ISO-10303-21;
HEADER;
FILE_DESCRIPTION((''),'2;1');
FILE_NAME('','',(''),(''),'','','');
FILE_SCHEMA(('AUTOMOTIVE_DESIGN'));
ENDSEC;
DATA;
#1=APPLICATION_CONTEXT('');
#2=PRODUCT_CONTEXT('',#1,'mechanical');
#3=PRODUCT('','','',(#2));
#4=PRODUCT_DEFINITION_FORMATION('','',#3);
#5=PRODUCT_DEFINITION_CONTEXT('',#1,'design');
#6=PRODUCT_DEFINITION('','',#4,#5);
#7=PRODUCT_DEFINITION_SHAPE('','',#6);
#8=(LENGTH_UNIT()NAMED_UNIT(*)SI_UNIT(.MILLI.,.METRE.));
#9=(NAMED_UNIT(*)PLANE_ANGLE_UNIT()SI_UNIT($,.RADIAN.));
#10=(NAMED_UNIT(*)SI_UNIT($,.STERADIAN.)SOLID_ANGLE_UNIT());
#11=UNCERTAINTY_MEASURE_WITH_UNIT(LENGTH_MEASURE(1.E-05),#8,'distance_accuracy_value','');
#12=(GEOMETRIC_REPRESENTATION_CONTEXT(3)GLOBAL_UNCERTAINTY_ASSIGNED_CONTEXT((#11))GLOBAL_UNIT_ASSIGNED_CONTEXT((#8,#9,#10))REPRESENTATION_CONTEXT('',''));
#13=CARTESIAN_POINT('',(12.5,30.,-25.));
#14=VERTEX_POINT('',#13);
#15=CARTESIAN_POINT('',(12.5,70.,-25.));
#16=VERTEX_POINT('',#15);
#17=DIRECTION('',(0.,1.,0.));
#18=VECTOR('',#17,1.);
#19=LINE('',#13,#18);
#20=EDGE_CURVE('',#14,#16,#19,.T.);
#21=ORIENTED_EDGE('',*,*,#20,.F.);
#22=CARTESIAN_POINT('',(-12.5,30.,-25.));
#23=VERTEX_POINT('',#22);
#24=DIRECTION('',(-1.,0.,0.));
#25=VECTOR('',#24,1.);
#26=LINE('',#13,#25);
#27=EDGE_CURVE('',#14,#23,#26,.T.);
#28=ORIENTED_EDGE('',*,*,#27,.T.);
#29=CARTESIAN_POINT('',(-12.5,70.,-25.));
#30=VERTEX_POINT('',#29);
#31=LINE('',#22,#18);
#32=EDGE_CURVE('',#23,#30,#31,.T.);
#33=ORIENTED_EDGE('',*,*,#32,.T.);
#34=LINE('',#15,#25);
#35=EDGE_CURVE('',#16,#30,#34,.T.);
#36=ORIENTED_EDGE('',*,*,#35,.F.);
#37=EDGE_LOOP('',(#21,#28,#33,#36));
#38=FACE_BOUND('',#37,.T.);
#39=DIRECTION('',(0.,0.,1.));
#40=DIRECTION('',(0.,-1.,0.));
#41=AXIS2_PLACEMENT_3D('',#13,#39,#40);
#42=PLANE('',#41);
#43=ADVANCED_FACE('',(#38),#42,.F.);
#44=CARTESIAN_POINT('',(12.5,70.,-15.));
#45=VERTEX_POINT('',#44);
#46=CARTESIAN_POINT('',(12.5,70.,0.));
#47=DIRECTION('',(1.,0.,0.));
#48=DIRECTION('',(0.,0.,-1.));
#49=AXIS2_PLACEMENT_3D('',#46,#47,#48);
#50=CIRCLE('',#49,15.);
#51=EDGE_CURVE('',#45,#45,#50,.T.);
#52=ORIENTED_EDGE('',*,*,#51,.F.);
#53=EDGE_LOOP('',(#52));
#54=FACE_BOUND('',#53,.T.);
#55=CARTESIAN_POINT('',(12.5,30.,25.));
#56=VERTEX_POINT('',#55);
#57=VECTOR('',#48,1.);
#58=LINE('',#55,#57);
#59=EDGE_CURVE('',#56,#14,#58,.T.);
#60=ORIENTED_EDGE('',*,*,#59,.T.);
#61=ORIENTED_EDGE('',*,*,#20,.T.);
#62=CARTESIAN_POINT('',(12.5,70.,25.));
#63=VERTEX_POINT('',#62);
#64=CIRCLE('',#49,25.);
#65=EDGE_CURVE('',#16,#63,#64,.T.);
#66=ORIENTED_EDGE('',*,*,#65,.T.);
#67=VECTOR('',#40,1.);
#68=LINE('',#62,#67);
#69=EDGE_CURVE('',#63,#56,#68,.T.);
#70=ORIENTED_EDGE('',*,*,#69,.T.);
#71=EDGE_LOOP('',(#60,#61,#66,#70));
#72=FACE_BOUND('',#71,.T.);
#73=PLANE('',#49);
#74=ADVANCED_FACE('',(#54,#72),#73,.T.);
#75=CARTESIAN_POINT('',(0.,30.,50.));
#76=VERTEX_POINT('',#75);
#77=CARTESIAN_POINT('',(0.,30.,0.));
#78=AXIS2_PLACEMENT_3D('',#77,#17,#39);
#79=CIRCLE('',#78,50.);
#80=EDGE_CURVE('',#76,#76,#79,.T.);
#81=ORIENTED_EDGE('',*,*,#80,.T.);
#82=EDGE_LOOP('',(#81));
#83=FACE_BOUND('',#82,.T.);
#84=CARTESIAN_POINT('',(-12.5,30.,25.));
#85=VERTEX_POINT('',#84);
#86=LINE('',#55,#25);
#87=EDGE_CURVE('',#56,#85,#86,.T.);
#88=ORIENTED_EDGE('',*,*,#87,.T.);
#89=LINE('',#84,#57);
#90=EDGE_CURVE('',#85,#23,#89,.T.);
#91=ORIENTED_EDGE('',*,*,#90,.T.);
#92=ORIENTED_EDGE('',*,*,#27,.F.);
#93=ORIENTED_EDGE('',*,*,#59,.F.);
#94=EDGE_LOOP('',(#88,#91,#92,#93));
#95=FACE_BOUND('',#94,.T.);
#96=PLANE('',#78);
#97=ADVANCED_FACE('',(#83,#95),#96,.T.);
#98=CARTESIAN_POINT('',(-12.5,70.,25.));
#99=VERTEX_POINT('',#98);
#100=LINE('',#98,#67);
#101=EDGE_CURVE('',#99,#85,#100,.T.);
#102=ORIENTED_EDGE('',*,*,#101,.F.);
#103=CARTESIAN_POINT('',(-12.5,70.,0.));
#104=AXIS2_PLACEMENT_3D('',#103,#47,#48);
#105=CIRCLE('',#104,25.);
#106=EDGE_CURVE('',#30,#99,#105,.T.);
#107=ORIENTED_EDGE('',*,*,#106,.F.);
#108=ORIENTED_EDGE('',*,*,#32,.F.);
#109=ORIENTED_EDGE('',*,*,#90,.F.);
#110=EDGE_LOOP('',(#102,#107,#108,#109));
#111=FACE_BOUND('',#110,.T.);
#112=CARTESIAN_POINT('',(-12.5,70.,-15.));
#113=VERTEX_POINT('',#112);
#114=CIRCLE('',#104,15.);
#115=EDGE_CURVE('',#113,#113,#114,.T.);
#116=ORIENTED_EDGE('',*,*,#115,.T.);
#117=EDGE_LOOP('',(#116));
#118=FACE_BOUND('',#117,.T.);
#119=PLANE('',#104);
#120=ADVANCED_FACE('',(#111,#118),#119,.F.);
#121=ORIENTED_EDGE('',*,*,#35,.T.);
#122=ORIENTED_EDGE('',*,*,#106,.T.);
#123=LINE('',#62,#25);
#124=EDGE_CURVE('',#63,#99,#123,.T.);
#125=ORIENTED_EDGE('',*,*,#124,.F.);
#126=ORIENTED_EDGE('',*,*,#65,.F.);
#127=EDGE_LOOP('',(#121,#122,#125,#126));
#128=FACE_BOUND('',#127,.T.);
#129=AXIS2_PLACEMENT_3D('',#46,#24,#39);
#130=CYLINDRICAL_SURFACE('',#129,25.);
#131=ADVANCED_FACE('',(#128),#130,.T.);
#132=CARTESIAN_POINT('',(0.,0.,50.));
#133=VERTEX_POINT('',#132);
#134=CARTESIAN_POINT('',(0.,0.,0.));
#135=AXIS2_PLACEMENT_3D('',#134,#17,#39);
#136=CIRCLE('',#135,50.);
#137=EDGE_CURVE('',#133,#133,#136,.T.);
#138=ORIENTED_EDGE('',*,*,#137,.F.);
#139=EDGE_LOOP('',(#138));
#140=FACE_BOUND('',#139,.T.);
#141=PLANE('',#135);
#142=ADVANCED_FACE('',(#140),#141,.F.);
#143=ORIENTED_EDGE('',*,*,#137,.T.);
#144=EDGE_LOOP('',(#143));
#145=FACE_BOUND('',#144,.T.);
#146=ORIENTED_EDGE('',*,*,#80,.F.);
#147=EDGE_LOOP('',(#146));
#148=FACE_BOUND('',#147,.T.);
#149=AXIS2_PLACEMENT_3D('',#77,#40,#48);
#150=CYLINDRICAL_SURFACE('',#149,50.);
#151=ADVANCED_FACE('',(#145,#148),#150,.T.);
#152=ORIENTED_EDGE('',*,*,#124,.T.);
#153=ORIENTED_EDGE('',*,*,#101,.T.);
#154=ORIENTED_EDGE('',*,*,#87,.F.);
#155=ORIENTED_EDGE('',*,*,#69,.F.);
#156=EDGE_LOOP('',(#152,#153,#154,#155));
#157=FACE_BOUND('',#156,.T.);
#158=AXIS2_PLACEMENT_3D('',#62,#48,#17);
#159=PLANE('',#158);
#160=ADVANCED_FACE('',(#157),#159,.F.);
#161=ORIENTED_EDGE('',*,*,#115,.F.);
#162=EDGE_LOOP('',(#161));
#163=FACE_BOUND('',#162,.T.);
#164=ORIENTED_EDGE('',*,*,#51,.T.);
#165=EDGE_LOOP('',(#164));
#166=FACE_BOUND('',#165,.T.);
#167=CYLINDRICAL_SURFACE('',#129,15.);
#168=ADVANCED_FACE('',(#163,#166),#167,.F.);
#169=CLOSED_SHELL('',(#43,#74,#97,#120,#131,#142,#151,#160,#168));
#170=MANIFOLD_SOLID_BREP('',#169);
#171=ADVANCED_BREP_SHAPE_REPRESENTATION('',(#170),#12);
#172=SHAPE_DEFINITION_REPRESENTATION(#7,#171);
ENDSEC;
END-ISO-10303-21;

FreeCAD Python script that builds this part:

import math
import FreeCAD as App
import Part
import Sketcher
from FreeCAD import Vector
Q = App.Units.Quantity

doc = App.newDocument("Part")
params = doc.addObject("Spreadsheet::Sheet", "Params")
for row, (alias, value) in enumerate([
    ("sketch1_diameter", "100 mm"),
    ("pad1_length", "30 mm"),
    ("sketch2_diameter", "30 mm"),
    ("sketch2_radius", "25 mm"),
    ("sketch2_width", "40 mm"),
    ("pad2_length", "25 mm"),
], start=1):
    params.set(f"A{row}", alias)
    params.set(f"B{row}", "=" + value)
    params.setAlias(f"B{row}", alias)

body = doc.addObject("PartDesign::Body", "Body")

# Sketch on XZ plane
sketch1 = body.newObject("Sketcher::SketchObject", "Sketch")
sketch1.AttachmentSupport = (doc.getObject("XZ_Plane"), [""])
sketch1.MapMode = "FlatFace"
sketch1.addGeometry(Part.Circle(Vector(0, 0, 0), Vector(0, 0, 1), 50), False)
sketch1.addConstraint([
    Sketcher.Constraint("Coincident", 0, 3, -1, 1),
    Sketcher.Constraint("Diameter", 0, Q("100 mm")),
])
sketch1.setExpression("Constraints[1]", "Params.sketch1_diameter")
pad1 = body.newObject("PartDesign::Pad", "Pad")
pad1.Profile = sketch1
pad1.setExpression("Length", "Params.pad1_length")
pad1.Reversed = True

# Sketch on YZ plane
sketch2 = body.newObject("Sketcher::SketchObject", "Sketch001")
sketch2.AttachmentSupport = (doc.getObject("YZ_Plane"), [""])
sketch2.MapMode = "FlatFace"
sketch2.addGeometry([
    Part.LineSegment(Vector(70, 25, 0), Vector(30, 25, 0)),  # 0
    Part.LineSegment(Vector(30, 25, 0), Vector(30, -25, 0)),  # 1
    Part.LineSegment(Vector(30, -25, 0), Vector(70, -25, 0)),  # 2
    Part.ArcOfCircle(Part.Circle(Vector(70, 0, 0), Vector(0, 0, 1), 25), math.radians(-90), math.radians(90)),  # 3
    Part.Circle(Vector(70, 0, 0), Vector(0, 0, 1), 15),  # 4
], False)
sketch2.addConstraint([
    Sketcher.Constraint("Coincident", 0, 2, 1, 1),
    Sketcher.Constraint("Coincident", 1, 2, 2, 1),
    Sketcher.Constraint("Tangent", 2, 2, 3, 1),
    Sketcher.Constraint("Tangent", 3, 2, 0, 1),
    Sketcher.Constraint("Horizontal", 0),
    Sketcher.Constraint("Vertical", 1),
    Sketcher.Constraint("Horizontal", 2),
    Sketcher.Constraint("Coincident", 4, 3, 3, 3),
    Sketcher.Constraint("PointOnObject", 3, 3, -1),
    Sketcher.Constraint("Diameter", 4, Q("30 mm")),
    Sketcher.Constraint("Radius", 3, Q("25 mm")),
    Sketcher.Constraint("DistanceX", 0, 2, 0, 1, Q("40 mm")),
    Sketcher.Constraint("DistanceX", -1, 1, 3, 3, Q("70 mm")),
])
sketch2.setExpression("Constraints[9]", "Params.sketch2_diameter")
sketch2.setExpression("Constraints[10]", "Params.sketch2_radius")
sketch2.setExpression("Constraints[11]", "Params.sketch2_width")
pad2 = body.newObject("PartDesign::Pad", "Pad001")
pad2.Profile = sketch2
pad2.setExpression("Length", "Params.pad2_length")
pad2.Midplane = True

doc.recompute()
